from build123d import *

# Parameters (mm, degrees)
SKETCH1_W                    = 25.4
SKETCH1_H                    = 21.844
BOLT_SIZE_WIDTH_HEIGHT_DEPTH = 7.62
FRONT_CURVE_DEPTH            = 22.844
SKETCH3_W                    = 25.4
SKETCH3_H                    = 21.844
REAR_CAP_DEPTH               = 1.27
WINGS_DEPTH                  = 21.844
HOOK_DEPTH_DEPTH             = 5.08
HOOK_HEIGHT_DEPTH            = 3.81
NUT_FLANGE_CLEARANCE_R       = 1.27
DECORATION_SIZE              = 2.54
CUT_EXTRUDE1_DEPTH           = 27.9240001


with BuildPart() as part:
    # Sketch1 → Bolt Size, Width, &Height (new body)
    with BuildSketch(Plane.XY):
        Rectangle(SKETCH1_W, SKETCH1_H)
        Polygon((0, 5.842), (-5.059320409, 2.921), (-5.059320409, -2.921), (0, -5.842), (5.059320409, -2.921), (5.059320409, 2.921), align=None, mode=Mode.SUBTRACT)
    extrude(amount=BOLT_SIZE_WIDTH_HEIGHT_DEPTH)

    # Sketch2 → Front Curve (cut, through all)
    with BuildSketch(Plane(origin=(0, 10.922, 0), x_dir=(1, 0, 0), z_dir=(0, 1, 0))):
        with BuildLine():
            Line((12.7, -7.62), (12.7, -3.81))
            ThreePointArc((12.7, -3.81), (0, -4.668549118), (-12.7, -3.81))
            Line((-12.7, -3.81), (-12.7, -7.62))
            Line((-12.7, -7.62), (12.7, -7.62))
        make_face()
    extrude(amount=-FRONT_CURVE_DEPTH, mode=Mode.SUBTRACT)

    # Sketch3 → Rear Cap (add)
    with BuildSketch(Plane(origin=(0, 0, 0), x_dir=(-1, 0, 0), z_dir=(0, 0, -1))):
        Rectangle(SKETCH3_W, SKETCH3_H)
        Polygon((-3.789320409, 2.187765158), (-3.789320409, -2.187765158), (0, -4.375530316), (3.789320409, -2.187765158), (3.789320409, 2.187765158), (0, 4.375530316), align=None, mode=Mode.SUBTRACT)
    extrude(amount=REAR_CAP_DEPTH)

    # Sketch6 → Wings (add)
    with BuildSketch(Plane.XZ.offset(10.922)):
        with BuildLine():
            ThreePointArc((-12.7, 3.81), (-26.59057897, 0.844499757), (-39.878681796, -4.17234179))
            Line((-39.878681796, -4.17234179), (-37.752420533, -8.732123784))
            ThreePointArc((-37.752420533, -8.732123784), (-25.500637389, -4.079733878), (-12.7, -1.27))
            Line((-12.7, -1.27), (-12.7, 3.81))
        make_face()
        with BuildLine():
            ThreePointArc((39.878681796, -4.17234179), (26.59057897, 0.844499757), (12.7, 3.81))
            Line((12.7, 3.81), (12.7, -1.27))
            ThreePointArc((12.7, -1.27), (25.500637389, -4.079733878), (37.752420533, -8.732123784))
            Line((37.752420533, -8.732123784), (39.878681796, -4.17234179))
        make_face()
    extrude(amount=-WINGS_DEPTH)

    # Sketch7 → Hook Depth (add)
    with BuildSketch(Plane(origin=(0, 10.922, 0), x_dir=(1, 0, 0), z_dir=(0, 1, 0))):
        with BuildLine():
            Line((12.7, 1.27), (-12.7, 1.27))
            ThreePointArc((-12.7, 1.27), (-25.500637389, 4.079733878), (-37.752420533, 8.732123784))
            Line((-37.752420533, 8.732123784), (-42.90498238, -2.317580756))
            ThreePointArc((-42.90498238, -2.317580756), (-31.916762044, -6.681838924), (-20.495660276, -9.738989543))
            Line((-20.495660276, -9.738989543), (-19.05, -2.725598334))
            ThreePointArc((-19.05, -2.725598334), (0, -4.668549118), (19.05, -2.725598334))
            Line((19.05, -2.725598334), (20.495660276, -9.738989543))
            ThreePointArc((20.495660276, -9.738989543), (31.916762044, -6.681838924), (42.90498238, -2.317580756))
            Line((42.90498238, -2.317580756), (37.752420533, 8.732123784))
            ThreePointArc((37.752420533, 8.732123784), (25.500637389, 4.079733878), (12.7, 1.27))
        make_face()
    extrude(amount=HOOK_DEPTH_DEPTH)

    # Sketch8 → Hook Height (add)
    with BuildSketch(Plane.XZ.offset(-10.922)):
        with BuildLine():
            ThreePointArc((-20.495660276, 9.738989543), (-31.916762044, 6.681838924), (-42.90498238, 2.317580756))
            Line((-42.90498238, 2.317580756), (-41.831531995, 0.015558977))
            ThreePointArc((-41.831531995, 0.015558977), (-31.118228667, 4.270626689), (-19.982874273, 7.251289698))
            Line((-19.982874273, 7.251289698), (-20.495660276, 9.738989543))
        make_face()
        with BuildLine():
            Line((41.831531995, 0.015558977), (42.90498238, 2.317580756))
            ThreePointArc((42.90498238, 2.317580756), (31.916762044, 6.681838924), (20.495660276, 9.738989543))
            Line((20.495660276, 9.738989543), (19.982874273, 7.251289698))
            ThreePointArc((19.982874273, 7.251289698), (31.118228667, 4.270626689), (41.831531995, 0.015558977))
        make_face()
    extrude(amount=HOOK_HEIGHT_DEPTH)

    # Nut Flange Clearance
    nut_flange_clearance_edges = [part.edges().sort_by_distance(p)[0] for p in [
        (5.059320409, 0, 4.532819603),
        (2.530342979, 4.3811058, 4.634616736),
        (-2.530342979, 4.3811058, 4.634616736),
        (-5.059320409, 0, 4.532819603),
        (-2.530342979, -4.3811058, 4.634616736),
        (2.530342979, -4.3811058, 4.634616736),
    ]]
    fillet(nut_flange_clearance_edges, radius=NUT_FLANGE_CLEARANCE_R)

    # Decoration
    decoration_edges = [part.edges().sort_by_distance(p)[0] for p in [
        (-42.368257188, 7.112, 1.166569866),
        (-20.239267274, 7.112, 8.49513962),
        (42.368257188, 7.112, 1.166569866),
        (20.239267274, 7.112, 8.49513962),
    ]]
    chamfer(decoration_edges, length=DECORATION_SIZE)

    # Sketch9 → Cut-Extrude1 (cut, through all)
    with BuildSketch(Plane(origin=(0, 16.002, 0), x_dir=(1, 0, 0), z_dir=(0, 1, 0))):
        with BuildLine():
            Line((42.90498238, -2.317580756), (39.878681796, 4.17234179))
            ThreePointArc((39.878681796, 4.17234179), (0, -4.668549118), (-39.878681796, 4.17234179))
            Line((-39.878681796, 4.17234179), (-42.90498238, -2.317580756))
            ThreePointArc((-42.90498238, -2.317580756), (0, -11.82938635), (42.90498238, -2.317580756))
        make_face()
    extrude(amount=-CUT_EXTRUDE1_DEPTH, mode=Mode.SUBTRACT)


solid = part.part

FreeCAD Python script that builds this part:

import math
import FreeCAD as App
import Part
import Sketcher
Q = App.Units.Quantity


def edges_at(feature, points):
    """Names of the edges that pass closest to the given points."""
    edges = feature.Shape.Edges
    near = lambda p: min(range(len(edges)), key=lambda i: edges[i].distToShape(Part.Vertex(*p))[0])
    return sorted({f"Edge{near(p) + 1}" for p in points})

doc = App.newDocument("Part")
body = doc.addObject("PartDesign::Body", "Body")

# Sketch on XY plane
sketch1 = doc.addObject("Sketcher::SketchObject", "Sketch")
body.addObject(sketch1)
sketch1.AttachmentSupport = (doc.XY_Plane, [""])
sketch1.MapMode = "FlatFace"
sketch1.addGeometry(Part.LineSegment(App.Vector(-13, 11, 0), App.Vector(-13, -11, 0)), False)
sketch1.addGeometry(Part.LineSegment(App.Vector(-13, -11, 0), App.Vector(13, -11, 0)), False)
sketch1.addGeometry(Part.LineSegment(App.Vector(13, -11, 0), App.Vector(13, 11, 0)), False)
sketch1.addGeometry(Part.LineSegment(App.Vector(13, 11, 0), App.Vector(-13, 11, 0)), False)
sketch1.addGeometry(Part.LineSegment(App.Vector(-5, 3, 0), App.Vector(0, 6, 0)), False)
sketch1.addGeometry(Part.LineSegment(App.Vector(0, 6, 0), App.Vector(5, 3, 0)), False)
sketch1.addGeometry(Part.LineSegment(App.Vector(5, 3, 0), App.Vector(5, -3, 0)), False)
sketch1.addGeometry(Part.LineSegment(App.Vector(5, -3, 0), App.Vector(0, -6, 0)), False)
sketch1.addGeometry(Part.LineSegment(App.Vector(0, -6, 0), App.Vector(-5, -3, 0)), False)
sketch1.addGeometry(Part.LineSegment(App.Vector(-5, -3, 0), App.Vector(-5, 3, 0)), False)
sketch1.addConstraint(Sketcher.Constraint("Coincident", 0, 2, 1, 1))
sketch1.addConstraint(Sketcher.Constraint("Coincident", 1, 2, 2, 1))
sketch1.addConstraint(Sketcher.Constraint("Coincident", 2, 2, 3, 1))
sketch1.addConstraint(Sketcher.Constraint("Coincident", 3, 2, 0, 1))
sketch1.addConstraint(Sketcher.Constraint("Coincident", 4, 2, 5, 1))
sketch1.addConstraint(Sketcher.Constraint("Coincident", 5, 2, 6, 1))
sketch1.addConstraint(Sketcher.Constraint("Coincident", 6, 2, 7, 1))
sketch1.addConstraint(Sketcher.Constraint("Coincident", 7, 2, 8, 1))
sketch1.addConstraint(Sketcher.Constraint("Coincident", 8, 2, 9, 1))
sketch1.addConstraint(Sketcher.Constraint("Coincident", 9, 2, 4, 1))
sketch1.addConstraint(Sketcher.Constraint("Vertical", 0))
sketch1.addConstraint(Sketcher.Constraint("Horizontal", 1))
sketch1.addConstraint(Sketcher.Constraint("Vertical", 2))
sketch1.addConstraint(Sketcher.Constraint("Horizontal", 3))
sketch1.addConstraint(Sketcher.Constraint("Vertical", 6))
sketch1.addConstraint(Sketcher.Constraint("Vertical", 9))
sketch1.addConstraint(Sketcher.Constraint("Symmetric", 0, 2, 2, 2, -1, 1))
sketch1.addConstraint(Sketcher.Constraint("Symmetric", 4, 2, 7, 2, -1, 1))
sketch1.addConstraint(Sketcher.Constraint("Symmetric", 5, 2, 8, 2, -1, 1))
sketch1.addConstraint(Sketcher.Constraint("PointOnObject", 4, 2, -2))
sketch1.addConstraint(Sketcher.Constraint("Parallel", 4, 7))
sketch1.addConstraint(Sketcher.Constraint("Horizontal", 6, 2, 8, 2))
sketch1.addConstraint(Sketcher.Constraint("DistanceX", 1, 1, 1, 2, Q("1 in")))
sketch1.addConstraint(Sketcher.Constraint("Angle", 4, Q("30 deg")))
sketch1.addConstraint(Sketcher.Constraint("DistanceY", 0, 2, 0, 1, Q("0.86 in")))
sketch1.addConstraint(Sketcher.Constraint("DistanceY", 6, 2, 6, 1, Q("0.23 in")))
sketch1.addConstraint(Sketcher.Constraint("DistanceY", 4, 2, 2, 2, Q("0.2 in")))
pad1 = doc.addObject("PartDesign::Pad", "Pad")
body.addObject(pad1)
pad1.Profile = sketch1
pad1.Length = Q("0.3 in")

# Sketch on XZ plane
sketch2 = doc.addObject("Sketcher::SketchObject", "Sketch001")
body.addObject(sketch2)
sketch2.AttachmentSupport = (doc.XZ_Plane, [""])
sketch2.MapMode = "FlatFace"
sketch2.AttachmentOffset = App.Placement(App.Vector(0, 0, -0.43 * 25.4), App.Rotation())
sketch2.addGeometry(Part.LineSegment(App.Vector(12.7, 7.6, 0), App.Vector(12.7, 3.8, 0)), False)
sketch2.addGeometry(Part.ArcOfCircle(Part.Circle(App.Vector(0, -89.7, 0), App.Vector(0, 0, 1), 94.4), math.radians(82.27), math.radians(97.73)), False)
sketch2.addGeometry(Part.LineSegment(App.Vector(-12.7, 3.8, 0), App.Vector(-12.7, 7.6, 0)), False)
sketch2.addGeometry(Part.LineSegment(App.Vector(-12.7, 7.6, 0), App.Vector(12.7, 7.6, 0)), False)
sketch2.addConstraint(Sketcher.Constraint("Coincident", 0, 2, 1, 1))
sketch2.addConstraint(Sketcher.Constraint("Coincident", 1, 2, 2, 1))
sketch2.addConstraint(Sketcher.Constraint("Coincident", 2, 2, 3, 1))
sketch2.addConstraint(Sketcher.Constraint("Coincident", 3, 2, 0, 1))
sketch2.addConstraint(Sketcher.Constraint("Vertical", 0))
sketch2.addConstraint(Sketcher.Constraint("Vertical", 2))
sketch2.addConstraint(Sketcher.Constraint("Horizontal", 3))
sketch2.addConstraint(Sketcher.Constraint("Symmetric", 0, 2, 1, 2, -2))
sketch2.addConstraint(Sketcher.Constraint("DistanceX", 3, 1, 3, 2, Q("1 in")))
sketch2.addConstraint(Sketcher.Constraint("Radius", 1, Q("3.715 in")))
sketch2.addConstraint(Sketcher.Constraint("DistanceY", 0, 2, 0, 1, Q("0.15 in")))
sketch2.addConstraint(Sketcher.Constraint("DistanceY", -1, 1, 2, 2, Q("0.3 in")))
pocket1 = doc.addObject("PartDesign::Pocket", "Pocket")
body.addObject(pocket1)
pocket1.Profile = sketch2
pocket1.Type = "ThroughAll"
pocket1.Reversed = True

# Sketch on XY plane
sketch3 = doc.addObject("Sketcher::SketchObject", "Sketch002")
body.addObject(sketch3)
sketch3.AttachmentSupport = (doc.XY_Plane, [""])
sketch3.MapMode = "FlatFace"
sketch3.addGeometry(Part.LineSegment(App.Vector(12.7, 10.9, 0), App.Vector(12.7, -10.9, 0)), False)
sketch3.addGeometry(Part.LineSegment(App.Vector(12.7, -10.9, 0), App.Vector(-12.7, -10.9, 0)), False)
sketch3.addGeometry(Part.LineSegment(App.Vector(-12.7, -10.9, 0), App.Vector(-12.7, 10.9, 0)), False)
sketch3.addGeometry(Part.LineSegment(App.Vector(-12.7, 10.9, 0), App.Vector(12.7, 10.9, 0)), False)
sketch3.addGeometry(Part.LineSegment(App.Vector(3.8, -2.2, 0), App.Vector(3.8, 2.2, 0)), False)
sketch3.addGeometry(Part.LineSegment(App.Vector(3.8, 2.2, 0), App.Vector(0, 4.4, 0)), False)
sketch3.addGeometry(Part.LineSegment(App.Vector(0, 4.4, 0), App.Vector(-3.8, 2.2, 0)), False)
sketch3.addGeometry(Part.LineSegment(App.Vector(-3.8, 2.2, 0), App.Vector(-3.8, -2.2, 0)), False)
sketch3.addGeometry(Part.LineSegment(App.Vector(-3.8, -2.2, 0), App.Vector(0, -4.4, 0)), False)
sketch3.addGeometry(Part.LineSegment(App.Vector(0, -4.4, 0), App.Vector(3.8, -2.2, 0)), False)
sketch3.addConstraint(Sketcher.Constraint("Coincident", 0, 2, 1, 1))
sketch3.addConstraint(Sketcher.Constraint("Coincident", 1, 2, 2, 1))
sketch3.addConstraint(Sketcher.Constraint("Coincident", 2, 2, 3, 1))
sketch3.addConstraint(Sketcher.Constraint("Coincident", 3, 2, 0, 1))
sketch3.addConstraint(Sketcher.Constraint("Coincident", 4, 2, 5, 1))
sketch3.addConstraint(Sketcher.Constraint("Coincident", 5, 2, 6, 1))
sketch3.addConstraint(Sketcher.Constraint("Coincident", 6, 2, 7, 1))
sketch3.addConstraint(Sketcher.Constraint("Coincident", 7, 2, 8, 1))
sketch3.addConstraint(Sketcher.Constraint("Coincident", 8, 2, 9, 1))
sketch3.addConstraint(Sketcher.Constraint("Coincident", 9, 2, 4, 1))
sketch3.addConstraint(Sketcher.Constraint("Vertical", 0))
sketch3.addConstraint(Sketcher.Constraint("Horizontal", 1))
sketch3.addConstraint(Sketcher.Constraint("Vertical", 2))
sketch3.addConstraint(Sketcher.Constraint("Horizontal", 3))
sketch3.addConstraint(Sketcher.Constraint("Vertical", 4))
sketch3.addConstraint(Sketcher.Constraint("Vertical", 7))
sketch3.addConstraint(Sketcher.Constraint("Symmetric", 0, 2, 2, 2, -1, 1))
sketch3.addConstraint(Sketcher.Constraint("Symmetric", 4, 2, 7, 2, -1, 1))
sketch3.addConstraint(Sketcher.Constraint("Symmetric", 5, 2, 8, 2, -1, 1))
sketch3.addConstraint(Sketcher.Constraint("PointOnObject", 5, 2, -2))
sketch3.addConstraint(Sketcher.Constraint("Parallel", 6, 9))
sketch3.addConstraint(Sketcher.Constraint("Horizontal", 4, 2, 6, 2))
sketch3.addConstraint(Sketcher.Constraint("DistanceX", 1, 2, 1, 1, Q("1 in")))
sketch3.addConstraint(Sketcher.Constraint("Angle", 5, Q("150 deg")))
sketch3.addConstraint(Sketcher.Constraint("DistanceY", 0, 2, 0, 1, Q("0.86 in")))
sketch3.addConstraint(Sketcher.Constraint("DistanceY", 4, 1, 4, 2, Q("4.37553 mm")))
sketch3.addConstraint(Sketcher.Constraint("Distance", 5, Q("4.37553 mm")))
pad2 = doc.addObject("PartDesign::Pad", "Pad001")
body.addObject(pad2)
pad2.Profile = sketch3
pad2.Length = Q("0.05 in")
pad2.Reversed = True

# Sketch on XZ plane
sketch4 = doc.addObject("Sketcher::SketchObject", "Sketch003")
body.addObject(sketch4)
sketch4.AttachmentSupport = (doc.XZ_Plane, [""])
sketch4.MapMode = "FlatFace"
sketch4.AttachmentOffset = App.Placement(App.Vector(0, 0, 0.43 * 25.4), App.Rotation())
sketch4.addGeometry(Part.ArcOfCircle(Part.Circle(App.Vector(0, -90, 0), App.Vector(0, 0, 1), 94), math.radians(97.73), math.radians(115)), False)
sketch4.addGeometry(Part.LineSegment(App.Vector(-40, -4, 0), App.Vector(-38, -9, 0)), False)
sketch4.addGeometry(Part.ArcOfCircle(Part.Circle(App.Vector(0, -90, 0), App.Vector(0, 0, 1), 89), math.radians(98.17), math.radians(115)), False)
sketch4.addGeometry(Part.LineSegment(App.Vector(-13, -1, 0), App.Vector(-13, 4, 0)), False)
sketch4.addGeometry(Part.ArcOfCircle(Part.Circle(App.Vector(0, -90, 0), App.Vector(0, 0, 1), 94), math.radians(65), math.radians(82.27)), False)
sketch4.addGeometry(Part.LineSegment(App.Vector(13, 4, 0), App.Vector(13, -1, 0)), False)
sketch4.addGeometry(Part.ArcOfCircle(Part.Circle(App.Vector(0, -90, 0), App.Vector(0, 0, 1), 89), math.radians(65), math.radians(81.83)), False)
sketch4.addGeometry(Part.LineSegment(App.Vector(38, -9, 0), App.Vector(40, -4, 0)), False)
sketch4.addConstraint(Sketcher.Constraint("Coincident", 0, 2, 1, 1))
sketch4.addConstraint(Sketcher.Constraint("Coincident", 1, 2, 2, 2))
sketch4.addConstraint(Sketcher.Constraint("Coincident", 2, 1, 3, 1))
sketch4.addConstraint(Sketcher.Constraint("Coincident", 3, 2, 0, 1))
sketch4.addConstraint(Sketcher.Constraint("Coincident", 4, 2, 5, 1))
sketch4.addConstraint(Sketcher.Constraint("Coincident", 5, 2, 6, 2))
sketch4.addConstraint(Sketcher.Constraint("Coincident", 6, 1, 7, 1))
sketch4.addConstraint(Sketcher.Constraint("Coincident", 7, 2, 4, 1))
sketch4.addConstraint(Sketcher.Constraint("Vertical", 3))
sketch4.addConstraint(Sketcher.Constraint("Vertical", 5))
sketch4.addConstraint(Sketcher.Constraint("Coincident", 2, 3, 0, 3))
sketch4.addConstraint(Sketcher.Constraint("Coincident", 4, 3, 0, 3))
sketch4.addConstraint(Sketcher.Constraint("Coincident", 6, 3, 0, 3))
sketch4.addConstraint(Sketcher.Constraint("Equal", 0, 4))
sketch4.addConstraint(Sketcher.Constraint("Equal", 2, 6))
sketch4.addConstraint(Sketcher.Constraint("Symmetric", 3, 2, 4, 2, -2))
sketch4.addConstraint(Sketcher.Constraint("Horizontal", 1, 2, 6, 1))
sketch4.addConstraint(Sketcher.Constraint("Horizontal", 0, 2, 7, 2))
sketch4.addConstraint(Sketcher.Constraint("DistanceY", 3, 1, 3, 2, Q("0.2 in")))
sketch4.addConstraint(Sketcher.Constraint("Angle", 1, Q("-65 deg")))
sketch4.addConstraint(Sketcher.Constraint("Radius", 0, Q("3.715 in")))
sketch4.addConstraint(Sketcher.Constraint("DistanceX", 3, 2, 4, 2, Q("1 in")))
sketch4.addConstraint(Sketcher.Constraint("DistanceY", 2, 1, -1, 1, Q("0.05 in")))
sketch4.addConstraint(Sketcher.Constraint("DistanceX", 0, 2, -1, 1, Q("39.878682 mm")))
pad3 = doc.addObject("PartDesign::Pad", "Pad002")
body.addObject(pad3)
pad3.Profile = sketch4
pad3.Length = Q("0.86 in")
pad3.Reversed = True

# Sketch on XZ plane
sketch5 = doc.addObject("Sketcher::SketchObject", "Sketch004")
body.addObject(sketch5)
sketch5.AttachmentSupport = (doc.XZ_Plane, [""])
sketch5.MapMode = "FlatFace"
sketch5.AttachmentOffset = App.Placement(App.Vector(0, 0, -0.43 * 25.4), App.Rotation())
sketch5.addGeometry(Part.LineSegment(App.Vector(13, -1, 0), App.Vector(-13, -1, 0)), False)
sketch5.addGeometry(Part.ArcOfCircle(Part.Circle(App.Vector(0, -90, 0), App.Vector(0, 0, 1), 89), math.radians(98.17), math.radians(115)), False)
sketch5.addGeometry(Part.LineSegment(App.Vector(-38, -9, 0), App.Vector(-43, 2, 0)), False)
sketch5.addGeometry(Part.ArcOfCircle(Part.Circle(App.Vector(0, -90, 0), App.Vector(0, 0, 1), 102), math.radians(101.65), math.radians(115)), False)
sketch5.addGeometry(Part.LineSegment(App.Vector(-20, 10, 0), App.Vector(-19, 3, 0)), False)
sketch5.addGeometry(Part.ArcOfCircle(Part.Circle(App.Vector(0, -90, 0), App.Vector(0, 0, 1), 94), math.radians(78), math.radians(102)), False)
sketch5.addGeometry(Part.LineSegment(App.Vector(19, 3, 0), App.Vector(20, 10, 0)), False)
sketch5.addGeometry(Part.ArcOfCircle(Part.Circle(App.Vector(0, -90, 0), App.Vector(0, 0, 1), 102), math.radians(65), math.radians(78.35)), False)
sketch5.addGeometry(Part.LineSegment(App.Vector(43, 2, 0), App.Vector(38, -9, 0)), False)
sketch5.addGeometry(Part.ArcOfCircle(Part.Circle(App.Vector(0, -90, 0), App.Vector(0, 0, 1), 89), math.radians(65), math.radians(81.83)), False)
sketch5.addConstraint(Sketcher.Constraint("Coincident", 0, 2, 1, 1))
sketch5.addConstraint(Sketcher.Constraint("Coincident", 1, 2, 2, 1))
sketch5.addConstraint(Sketcher.Constraint("Coincident", 2, 2, 3, 2))
sketch5.addConstraint(Sketcher.Constraint("Coincident", 3, 1, 4, 1))
sketch5.addConstraint(Sketcher.Constraint("Coincident", 4, 2, 5, 2))
sketch5.addConstraint(Sketcher.Constraint("Coincident", 5, 1, 6, 1))
sketch5.addConstraint(Sketcher.Constraint("Coincident", 6, 2, 7, 2))
sketch5.addConstraint(Sketcher.Constraint("Coincident", 7, 1, 8, 1))
sketch5.addConstraint(Sketcher.Constraint("Coincident", 8, 2, 9, 1))
sketch5.addConstraint(Sketcher.Constraint("Coincident", 9, 2, 0, 1))
sketch5.addConstraint(Sketcher.Constraint("Horizontal", 0))
sketch5.addConstraint(Sketcher.Constraint("Coincident", 3, 3, 1, 3))
sketch5.addConstraint(Sketcher.Constraint("Coincident", 5, 3, 1, 3))
sketch5.addConstraint(Sketcher.Constraint("Coincident", 7, 3, 1, 3))
sketch5.addConstraint(Sketcher.Constraint("Coincident", 9, 3, 1, 3))
sketch5.addConstraint(Sketcher.Constraint("Equal", 3, 7))
sketch5.addConstraint(Sketcher.Constraint("Equal", 1, 9))
sketch5.addConstraint(Sketcher.Constraint("Symmetric", 4, 2, 5, 1, -2))
sketch5.addConstraint(Sketcher.Constraint("Horizontal", 3, 1, 6, 2))
sketch5.addConstraint(Sketcher.Constraint("Horizontal", 2, 2, 7, 1))
sketch5.addConstraint(Sketcher.Constraint("Horizontal", 1, 2, 8, 2))
sketch5.addConstraint(Sketcher.Constraint("DistanceX", 0, 2, 0, 1, Q("1 in")))
sketch5.addConstraint(Sketcher.Constraint("Angle", 2, Q("115 deg")))
sketch5.addConstraint(Sketcher.Constraint("Radius", 5, Q("3.715 in")))
sketch5.addConstraint(Sketcher.Constraint("DistanceX", 4, 2, 5, 1, Q("1.5 in")))
sketch5.addConstraint(Sketcher.Constraint("Distance", 2, Q("0.48 in")))
sketch5.addConstraint(Sketcher.Constraint("DistanceY", 0, 2, -1, 1, Q("0.05 in")))
sketch5.addConstraint(Sketcher.Constraint("Radius", 1, Q("89.329837 mm")))
sketch5.addConstraint(Sketcher.Constraint("DistanceX", 1, 2, 3, 1, Q("0.6794 in")))
sketch5.addConstraint(Sketcher.Constraint("DistanceX", 1, 2, -1, 1, Q("37.752421 mm")))
pad4 = doc.addObject("PartDesign::Pad", "Pad003")
body.addObject(pad4)
pad4.Profile = sketch5
pad4.Length = Q("0.2 in")
pad4.Reversed = True

# Sketch on XZ plane
sketch6 = doc.addObject("Sketcher::SketchObject", "Sketch005")
body.addObject(sketch6)
sketch6.AttachmentSupport = (doc.XZ_Plane, [""])
sketch6.MapMode = "FlatFace"
sketch6.AttachmentOffset = App.Placement(App.Vector(0, 0, -0.43 * 25.4), App.Rotation())
sketch6.addGeometry(Part.ArcOfCircle(Part.Circle(App.Vector(0, -89.7, 0), App.Vector(0, 0, 1), 101.5), math.radians(101.65), math.radians(115)), False)
sketch6.addGeometry(Part.LineSegment(App.Vector(-42.9, 2.3, 0), App.Vector(-41.8, 0, 0)), False)
sketch6.addGeometry(Part.ArcOfCircle(Part.Circle(App.Vector(0, -89.7, 0), App.Vector(0, 0, 1), 99), math.radians(101.65), math.radians(115)), False)
sketch6.addGeometry(Part.LineSegment(App.Vector(-20, 7.3, 0), App.Vector(-20.5, 9.7, 0)), False)
sketch6.addGeometry(Part.LineSegment(App.Vector(41.8, 0, 0), App.Vector(42.9, 2.3, 0)), False)
sketch6.addGeometry(Part.ArcOfCircle(Part.Circle(App.Vector(0, -89.7, 0), App.Vector(0, 0, 1), 101.5), math.radians(65), math.radians(78.35)), False)
sketch6.addGeometry(Part.LineSegment(App.Vector(20.5, 9.7, 0), App.Vector(20, 7.3, 0)), False)
sketch6.addGeometry(Part.ArcOfCircle(Part.Circle(App.Vector(0, -89.7, 0), App.Vector(0, 0, 1), 99), math.radians(65), math.radians(78.35)), False)
sketch6.addConstraint(Sketcher.Constraint("Coincident", 0, 2, 1, 1))
sketch6.addConstraint(Sketcher.Constraint("Coincident", 1, 2, 2, 2))
sketch6.addConstraint(Sketcher.Constraint("Coincident", 2, 1, 3, 1))
sketch6.addConstraint(Sketcher.Constraint("Coincident", 3, 2, 0, 1))
sketch6.addConstraint(Sketcher.Constraint("Coincident", 4, 2, 5, 1))
sketch6.addConstraint(Sketcher.Constraint("Coincident", 5, 2, 6, 1))
sketch6.addConstraint(Sketcher.Constraint("Coincident", 6, 2, 7, 2))
sketch6.addConstraint(Sketcher.Constraint("Coincident", 7, 1, 4, 1))
sketch6.addConstraint(Sketcher.Constraint("Coincident", 2, 3, 0, 3))
sketch6.addConstraint(Sketcher.Constraint("Coincident", 5, 3, 0, 3))
sketch6.addConstraint(Sketcher.Constraint("Coincident", 7, 3, 0, 3))
sketch6.addConstraint(Sketcher.Constraint("Equal", 0, 5))
sketch6.addConstraint(Sketcher.Constraint("Equal", 2, 7))
sketch6.addConstraint(Sketcher.Constraint("Symmetric", 0, 2, 4, 2, -2))
sketch6.addConstraint(Sketcher.Constraint("Horizontal", 3, 2, 5, 2))
sketch6.addConstraint(Sketcher.Constraint("Horizontal", 2, 1, 6, 2))
sketch6.addConstraint(Sketcher.Constraint("Horizontal", 1, 2, 7, 1))
sketch6.addConstraint(Sketcher.Constraint("Angle", 1, Q("-65 deg")))
sketch6.addConstraint(Sketcher.Constraint("Distance", 1, Q("0.1 in")))
sketch6.addConstraint(Sketcher.Constraint("Radius", 0, Q("101.521837 mm")))
sketch6.addConstraint(Sketcher.Constraint("DistanceX", 2, 1, 4, 2, Q("2.4758999 in")))
sketch6.addConstraint(Sketcher.Constraint("DistanceY", 2, 1, 3, 2, Q("2.4877 mm")))
sketch6.addConstraint(Sketcher.Constraint("DistanceY", 0, 3, -1, 1, Q("89.692451 mm")))
sketch6.addConstraint(Sketcher.Constraint("DistanceY", -1, 1, 0, 2, Q("2.317581 mm")))
pad5 = doc.addObject("PartDesign::Pad", "Pad004")
body.addObject(pad5)
pad5.Profile = sketch6
pad5.Length = Q("0.15 in")
doc.recompute()

fillet = doc.addObject("PartDesign::Fillet", "Fillet")
body.addObject(fillet)
fillet.Base = (pad5, edges_at(pad5, [
    (5.059, 0, 4.533),
    (2.53, 4.381, 4.635),
    (-2.53, 4.381, 4.635),
    (-5.059, 0, 4.533),
    (-2.53, -4.381, 4.635),
    (2.53, -4.381, 4.635),
]))
fillet.Radius = Q("0.05 in")
doc.recompute()

chamfer = doc.addObject("PartDesign::Chamfer", "Chamfer")
body.addObject(chamfer)
chamfer.Base = (fillet, edges_at(fillet, [
    (-42.368, 7.112, 1.167),
    (-20.239, 7.112, 8.495),
    (42.368, 7.112, 1.167),
    (20.239, 7.112, 8.495),
]))
chamfer.Size = Q("0.1 in")

# Sketch on XZ plane
sketch7 = doc.addObject("Sketcher::SketchObject", "Sketch006")
body.addObject(sketch7)
sketch7.AttachmentSupport = (doc.XZ_Plane, [""])
sketch7.MapMode = "FlatFace"
sketch7.AttachmentOffset = App.Placement(App.Vector(0, 0, -0.63 * 25.4), App.Rotation())
sketch7.addGeometry(Part.LineSegment(App.Vector(43, 2, 0), App.Vector(40, -4, 0)), False)
sketch7.addGeometry(Part.ArcOfCircle(Part.Circle(App.Vector(0, -90, 0), App.Vector(0, 0, 1), 94), math.radians(65), math.radians(115)), False)
sketch7.addGeometry(Part.LineSegment(App.Vector(-40, -4, 0), App.Vector(-43, 2, 0)), False)
sketch7.addGeometry(Part.ArcOfCircle(Part.Circle(App.Vector(0, -90, 0), App.Vector(0, 0, 1), 102), math.radians(65), math.radians(115)), False)
sketch7.addConstraint(Sketcher.Constraint("Coincident", 0, 2, 1, 1))
sketch7.addConstraint(Sketcher.Constraint("Coincident", 1, 2, 2, 1))
sketch7.addConstraint(Sketcher.Constraint("Coincident", 2, 2, 3, 2))
sketch7.addConstraint(Sketcher.Constraint("Coincident", 3, 1, 0, 1))
sketch7.addConstraint(Sketcher.Constraint("Coincident", 3, 3, 1, 3))
sketch7.addConstraint(Sketcher.Constraint("Symmetric", 0, 2, 1, 2, -2))
sketch7.addConstraint(Sketcher.Constraint("Horizontal", 2, 2, 3, 1))
sketch7.addConstraint(Sketcher.Constraint("Angle", 0, Q("-115 deg")))
sketch7.addConstraint(Sketcher.Constraint("Radius", 1, Q("3.715 in")))
sketch7.addConstraint(Sketcher.Constraint("Radius", 3, Q("101.521837 mm")))
sketch7.addConstraint(Sketcher.Constraint("DistanceY", 1, 3, -1, 1, Q("89.692451 mm")))
sketch7.addConstraint(Sketcher.Constraint("DistanceX", -1, 1, 0, 2, Q("39.878682 mm")))
pocket2 = doc.addObject("PartDesign::Pocket", "Pocket001")
body.addObject(pocket2)
pocket2.Profile = sketch7
pocket2.Type = "ThroughAll"
pocket2.Reversed = True

doc.recompute()
